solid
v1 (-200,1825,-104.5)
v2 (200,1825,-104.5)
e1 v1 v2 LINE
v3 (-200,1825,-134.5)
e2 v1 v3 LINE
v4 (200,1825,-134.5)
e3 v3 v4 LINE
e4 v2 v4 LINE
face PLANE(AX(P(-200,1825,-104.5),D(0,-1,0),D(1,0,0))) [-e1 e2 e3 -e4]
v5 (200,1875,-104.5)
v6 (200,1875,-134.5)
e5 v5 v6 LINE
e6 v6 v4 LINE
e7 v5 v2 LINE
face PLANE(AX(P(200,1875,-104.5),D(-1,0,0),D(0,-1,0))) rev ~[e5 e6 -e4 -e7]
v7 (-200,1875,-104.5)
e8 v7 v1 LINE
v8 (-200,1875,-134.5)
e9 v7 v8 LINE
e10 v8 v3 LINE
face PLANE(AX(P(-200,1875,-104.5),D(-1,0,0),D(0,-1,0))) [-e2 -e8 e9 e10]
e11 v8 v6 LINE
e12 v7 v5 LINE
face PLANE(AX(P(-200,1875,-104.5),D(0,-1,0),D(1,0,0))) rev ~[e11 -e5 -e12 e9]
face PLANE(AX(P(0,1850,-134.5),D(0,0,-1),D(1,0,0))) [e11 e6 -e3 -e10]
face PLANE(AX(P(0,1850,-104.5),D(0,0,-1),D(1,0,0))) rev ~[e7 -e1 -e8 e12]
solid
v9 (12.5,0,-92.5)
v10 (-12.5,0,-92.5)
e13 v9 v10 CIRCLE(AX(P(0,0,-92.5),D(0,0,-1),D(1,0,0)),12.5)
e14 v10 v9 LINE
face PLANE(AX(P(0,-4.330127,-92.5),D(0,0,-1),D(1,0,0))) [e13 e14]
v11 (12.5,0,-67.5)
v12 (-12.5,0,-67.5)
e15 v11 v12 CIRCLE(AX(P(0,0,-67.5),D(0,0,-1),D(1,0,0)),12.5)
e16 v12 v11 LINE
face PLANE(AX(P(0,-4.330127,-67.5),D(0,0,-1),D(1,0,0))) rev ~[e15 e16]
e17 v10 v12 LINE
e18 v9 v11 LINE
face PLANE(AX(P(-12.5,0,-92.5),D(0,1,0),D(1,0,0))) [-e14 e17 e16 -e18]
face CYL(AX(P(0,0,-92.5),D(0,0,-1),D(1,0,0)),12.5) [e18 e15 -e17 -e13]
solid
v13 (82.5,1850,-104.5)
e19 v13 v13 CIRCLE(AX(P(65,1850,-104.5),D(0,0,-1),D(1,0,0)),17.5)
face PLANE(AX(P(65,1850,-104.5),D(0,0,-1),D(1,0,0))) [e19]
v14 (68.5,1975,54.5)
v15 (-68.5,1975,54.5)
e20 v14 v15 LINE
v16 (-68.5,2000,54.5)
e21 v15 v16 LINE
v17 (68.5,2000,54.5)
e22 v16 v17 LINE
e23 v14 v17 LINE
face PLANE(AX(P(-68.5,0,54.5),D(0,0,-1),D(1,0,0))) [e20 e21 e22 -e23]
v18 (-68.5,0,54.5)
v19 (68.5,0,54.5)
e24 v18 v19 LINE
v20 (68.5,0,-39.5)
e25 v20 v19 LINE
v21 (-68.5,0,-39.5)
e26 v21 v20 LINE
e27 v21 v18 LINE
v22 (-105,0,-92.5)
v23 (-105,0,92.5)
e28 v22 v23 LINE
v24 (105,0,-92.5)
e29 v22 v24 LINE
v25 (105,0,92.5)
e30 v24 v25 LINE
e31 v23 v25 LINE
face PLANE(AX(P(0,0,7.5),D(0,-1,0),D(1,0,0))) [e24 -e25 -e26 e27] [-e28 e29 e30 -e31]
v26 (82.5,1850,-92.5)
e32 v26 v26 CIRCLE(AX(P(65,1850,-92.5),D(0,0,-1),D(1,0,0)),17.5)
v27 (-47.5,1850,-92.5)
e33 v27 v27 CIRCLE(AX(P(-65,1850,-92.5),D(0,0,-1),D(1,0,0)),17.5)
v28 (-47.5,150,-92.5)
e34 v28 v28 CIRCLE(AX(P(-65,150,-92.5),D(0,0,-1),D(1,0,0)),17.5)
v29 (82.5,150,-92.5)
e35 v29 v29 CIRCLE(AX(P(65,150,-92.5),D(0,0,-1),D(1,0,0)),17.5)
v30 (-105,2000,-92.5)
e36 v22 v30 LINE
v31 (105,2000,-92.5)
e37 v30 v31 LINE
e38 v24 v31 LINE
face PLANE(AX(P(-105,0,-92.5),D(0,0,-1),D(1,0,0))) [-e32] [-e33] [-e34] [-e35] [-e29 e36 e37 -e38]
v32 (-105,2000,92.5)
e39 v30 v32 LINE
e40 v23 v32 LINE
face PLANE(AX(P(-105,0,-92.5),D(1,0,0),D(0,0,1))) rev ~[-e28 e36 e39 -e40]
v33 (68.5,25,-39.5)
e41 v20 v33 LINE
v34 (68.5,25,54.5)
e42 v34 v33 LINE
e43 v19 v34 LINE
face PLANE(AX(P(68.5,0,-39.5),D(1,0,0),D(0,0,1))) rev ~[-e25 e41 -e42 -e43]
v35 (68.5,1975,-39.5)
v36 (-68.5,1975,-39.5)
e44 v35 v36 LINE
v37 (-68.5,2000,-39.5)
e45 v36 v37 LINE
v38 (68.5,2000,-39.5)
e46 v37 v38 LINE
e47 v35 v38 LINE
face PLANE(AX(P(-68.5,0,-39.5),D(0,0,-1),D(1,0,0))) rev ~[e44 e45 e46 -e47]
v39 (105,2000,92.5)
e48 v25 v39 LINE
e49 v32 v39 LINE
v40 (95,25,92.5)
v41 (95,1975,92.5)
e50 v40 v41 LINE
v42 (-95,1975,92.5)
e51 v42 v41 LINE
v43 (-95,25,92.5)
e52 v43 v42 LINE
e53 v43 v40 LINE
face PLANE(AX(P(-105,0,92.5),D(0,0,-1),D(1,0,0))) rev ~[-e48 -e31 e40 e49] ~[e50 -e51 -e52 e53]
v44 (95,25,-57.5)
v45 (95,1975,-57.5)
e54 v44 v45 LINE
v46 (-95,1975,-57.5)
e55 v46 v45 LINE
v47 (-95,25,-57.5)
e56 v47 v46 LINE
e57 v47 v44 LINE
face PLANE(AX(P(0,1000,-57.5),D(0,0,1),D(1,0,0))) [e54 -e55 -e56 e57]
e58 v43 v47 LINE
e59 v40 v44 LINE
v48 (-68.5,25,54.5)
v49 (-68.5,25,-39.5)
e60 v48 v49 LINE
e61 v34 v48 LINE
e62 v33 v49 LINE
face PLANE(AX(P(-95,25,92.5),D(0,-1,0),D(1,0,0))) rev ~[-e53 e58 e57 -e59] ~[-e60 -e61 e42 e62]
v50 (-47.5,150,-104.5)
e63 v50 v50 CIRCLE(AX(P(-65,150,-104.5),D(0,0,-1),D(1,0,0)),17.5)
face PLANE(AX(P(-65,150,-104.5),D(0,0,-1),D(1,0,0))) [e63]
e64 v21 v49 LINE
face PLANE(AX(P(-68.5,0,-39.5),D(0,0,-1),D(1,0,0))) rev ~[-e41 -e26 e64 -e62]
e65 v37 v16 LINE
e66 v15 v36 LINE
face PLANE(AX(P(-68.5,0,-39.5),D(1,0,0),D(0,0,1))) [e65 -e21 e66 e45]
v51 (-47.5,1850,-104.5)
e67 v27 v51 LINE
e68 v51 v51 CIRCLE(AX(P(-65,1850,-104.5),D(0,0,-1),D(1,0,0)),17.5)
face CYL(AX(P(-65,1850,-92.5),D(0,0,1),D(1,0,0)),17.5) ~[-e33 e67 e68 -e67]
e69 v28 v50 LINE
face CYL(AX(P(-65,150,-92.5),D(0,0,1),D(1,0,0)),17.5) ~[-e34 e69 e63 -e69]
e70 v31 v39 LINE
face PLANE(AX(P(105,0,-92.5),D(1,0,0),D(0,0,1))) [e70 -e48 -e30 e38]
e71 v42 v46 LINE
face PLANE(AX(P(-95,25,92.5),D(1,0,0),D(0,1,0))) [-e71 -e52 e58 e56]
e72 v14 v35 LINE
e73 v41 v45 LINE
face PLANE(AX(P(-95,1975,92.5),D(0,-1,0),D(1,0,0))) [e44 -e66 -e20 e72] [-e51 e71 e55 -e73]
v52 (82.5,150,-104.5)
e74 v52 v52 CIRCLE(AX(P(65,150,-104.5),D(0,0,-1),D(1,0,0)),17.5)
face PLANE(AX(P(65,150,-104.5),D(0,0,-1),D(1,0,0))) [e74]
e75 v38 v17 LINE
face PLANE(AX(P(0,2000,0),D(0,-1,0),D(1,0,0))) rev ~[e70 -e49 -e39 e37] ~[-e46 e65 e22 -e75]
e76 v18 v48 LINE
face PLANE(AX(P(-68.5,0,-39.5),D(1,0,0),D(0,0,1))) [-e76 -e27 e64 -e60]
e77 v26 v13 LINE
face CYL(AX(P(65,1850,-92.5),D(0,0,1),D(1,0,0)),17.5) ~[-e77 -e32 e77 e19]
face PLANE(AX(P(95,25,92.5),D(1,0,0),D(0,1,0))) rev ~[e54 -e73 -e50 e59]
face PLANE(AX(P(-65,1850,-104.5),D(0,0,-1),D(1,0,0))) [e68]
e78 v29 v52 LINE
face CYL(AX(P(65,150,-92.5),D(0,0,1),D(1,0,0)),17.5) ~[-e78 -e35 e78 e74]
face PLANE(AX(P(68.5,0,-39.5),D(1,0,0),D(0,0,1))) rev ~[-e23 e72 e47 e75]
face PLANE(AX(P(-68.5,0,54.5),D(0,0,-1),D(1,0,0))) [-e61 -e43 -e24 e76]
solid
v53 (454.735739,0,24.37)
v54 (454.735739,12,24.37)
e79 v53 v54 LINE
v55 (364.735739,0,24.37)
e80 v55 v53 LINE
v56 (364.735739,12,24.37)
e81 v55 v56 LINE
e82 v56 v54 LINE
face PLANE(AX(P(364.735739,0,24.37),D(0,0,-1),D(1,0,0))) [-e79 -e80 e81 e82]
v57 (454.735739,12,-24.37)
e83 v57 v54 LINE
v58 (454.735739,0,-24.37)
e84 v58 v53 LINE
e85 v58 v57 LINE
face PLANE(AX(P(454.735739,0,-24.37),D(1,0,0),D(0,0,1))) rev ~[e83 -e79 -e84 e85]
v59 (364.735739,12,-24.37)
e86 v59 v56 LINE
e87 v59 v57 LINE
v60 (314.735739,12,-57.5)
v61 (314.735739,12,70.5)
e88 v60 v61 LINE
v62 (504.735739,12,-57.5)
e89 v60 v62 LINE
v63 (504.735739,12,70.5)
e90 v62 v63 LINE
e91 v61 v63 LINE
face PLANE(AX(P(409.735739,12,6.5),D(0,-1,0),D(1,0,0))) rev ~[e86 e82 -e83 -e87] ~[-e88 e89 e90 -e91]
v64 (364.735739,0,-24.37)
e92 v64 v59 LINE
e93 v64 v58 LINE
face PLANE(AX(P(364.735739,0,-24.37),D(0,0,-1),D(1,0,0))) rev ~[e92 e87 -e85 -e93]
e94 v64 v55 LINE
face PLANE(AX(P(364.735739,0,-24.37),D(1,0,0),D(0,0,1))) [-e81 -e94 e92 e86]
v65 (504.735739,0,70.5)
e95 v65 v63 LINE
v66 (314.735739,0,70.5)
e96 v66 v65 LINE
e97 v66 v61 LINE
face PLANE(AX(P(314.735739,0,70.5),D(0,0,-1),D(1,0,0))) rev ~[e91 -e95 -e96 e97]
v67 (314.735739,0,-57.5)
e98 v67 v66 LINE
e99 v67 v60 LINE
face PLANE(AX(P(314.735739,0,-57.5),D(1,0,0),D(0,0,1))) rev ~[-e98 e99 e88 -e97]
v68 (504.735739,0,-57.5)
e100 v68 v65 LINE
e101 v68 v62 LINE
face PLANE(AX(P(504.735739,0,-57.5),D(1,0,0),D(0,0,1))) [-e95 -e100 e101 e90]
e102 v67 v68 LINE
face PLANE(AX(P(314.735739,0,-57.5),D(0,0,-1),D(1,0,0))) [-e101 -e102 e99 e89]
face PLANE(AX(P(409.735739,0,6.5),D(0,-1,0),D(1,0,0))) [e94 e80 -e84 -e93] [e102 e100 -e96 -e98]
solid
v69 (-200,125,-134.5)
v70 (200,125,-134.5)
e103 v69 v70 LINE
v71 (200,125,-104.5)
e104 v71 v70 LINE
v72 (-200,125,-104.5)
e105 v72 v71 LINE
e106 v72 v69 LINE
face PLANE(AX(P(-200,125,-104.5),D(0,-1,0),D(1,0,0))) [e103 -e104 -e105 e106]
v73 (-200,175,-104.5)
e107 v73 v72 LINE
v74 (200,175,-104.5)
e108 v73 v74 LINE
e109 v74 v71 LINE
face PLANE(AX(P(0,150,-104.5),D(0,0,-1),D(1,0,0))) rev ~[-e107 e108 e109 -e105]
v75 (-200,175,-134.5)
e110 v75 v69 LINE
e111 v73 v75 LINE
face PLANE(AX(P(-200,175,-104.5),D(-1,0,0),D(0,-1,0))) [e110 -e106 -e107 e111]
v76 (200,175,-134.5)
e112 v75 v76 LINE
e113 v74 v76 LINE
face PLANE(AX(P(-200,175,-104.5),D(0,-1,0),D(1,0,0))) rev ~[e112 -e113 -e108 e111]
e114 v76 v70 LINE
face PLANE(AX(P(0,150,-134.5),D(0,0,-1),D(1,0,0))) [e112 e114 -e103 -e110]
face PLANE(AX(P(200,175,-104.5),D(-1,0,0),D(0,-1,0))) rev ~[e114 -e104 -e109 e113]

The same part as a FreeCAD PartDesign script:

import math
import FreeCAD as App
import Part
import Sketcher
from FreeCAD import Vector
Q = App.Units.Quantity


def add_polygon(sketch, points):
    """Adds a closed chain of lines whose ends are joined by coincident constraints."""
    first, n = sketch.GeometryCount, len(points)
    for a, b in zip(points, points[1:] + points[:1]):
        sketch.addGeometry(Part.LineSegment(App.Vector(*a, 0), App.Vector(*b, 0)), False)
    for i in range(n):
        sketch.addConstraint(Sketcher.Constraint("Coincident", first + i, 2, first + (i + 1) % n, 1))

doc = App.newDocument("Part")
body = doc.addObject("PartDesign::Body", "Body")

# Sketch on XZ plane
sketch1 = doc.addObject("Sketcher::SketchObject", "Sketch")
body.addObject(sketch1)
sketch1.AttachmentSupport = (doc.XZ_Plane, [""])
sketch1.MapMode = "FlatFace"
add_polygon(sketch1, [(-105, 92), (-105, -92), (105, -92), (105, 92)])  # lines 0-3
sketch1.addConstraint([
    Sketcher.Constraint("Vertical", 0),
    Sketcher.Constraint("Horizontal", 1),
    Sketcher.Constraint("Vertical", 2),
    Sketcher.Constraint("Horizontal", 3),
    Sketcher.Constraint("Symmetric", 0, 2, 2, 2, -1, 1),
    Sketcher.Constraint("DistanceX", 1, 1, 1, 2, Q("210 mm")),
    Sketcher.Constraint("DistanceY", 0, 2, 0, 1, Q("185 mm")),
])
pad1 = doc.addObject("PartDesign::Pad", "Pad")
body.addObject(pad1)
pad1.Profile = sketch1
pad1.Length = 2000
pad1.Reversed = True

# Sketch on XZ plane
sketch2 = doc.addObject("Sketcher::SketchObject", "Sketch001")
body.addObject(sketch2)
sketch2.AttachmentSupport = (doc.XZ_Plane, [""])
sketch2.MapMode = "FlatFace"
add_polygon(sketch2, [(-68, 54), (-68, -40), (68, -40), (68, 54)])  # lines 0-3
sketch2.addConstraint([
    Sketcher.Constraint("Vertical", 0),
    Sketcher.Constraint("Horizontal", 1),
    Sketcher.Constraint("Vertical", 2),
    Sketcher.Constraint("Horizontal", 3),
    Sketcher.Constraint("DistanceX", 1, 1, 1, 2, Q("137 mm")),
    Sketcher.Constraint("DistanceY", 0, 2, 0, 1, Q("94 mm")),
    Sketcher.Constraint("DistanceX", 0, 2, -1, 1, Q("68.5 mm")),
    Sketcher.Constraint("DistanceY", 0, 2, -1, 1, Q("39.5 mm")),
])
pad2 = doc.addObject("PartDesign::Pad", "Pad001")
body.addObject(pad2)
pad2.Profile = sketch2
pad2.Length = 2100
pad2.Reversed = True

# Sketch on XZ plane
sketch3 = doc.addObject("Sketcher::SketchObject", "Sketch002")
body.addObject(sketch3)
sketch3.AttachmentSupport = (doc.XZ_Plane, [""])
sketch3.MapMode = "FlatFace"
add_polygon(sketch3, [(-68, 54), (-68, -40), (68, -40), (68, 54)])  # lines 0-3
sketch3.addConstraint([
    Sketcher.Constraint("Vertical", 0),
    Sketcher.Constraint("Horizontal", 1),
    Sketcher.Constraint("Vertical", 2),
    Sketcher.Constraint("Horizontal", 3),
    Sketcher.Constraint("DistanceX", 1, 1, 1, 2, Q("137 mm")),
    Sketcher.Constraint("DistanceY", 0, 2, 0, 1, Q("94 mm")),
    Sketcher.Constraint("DistanceX", 0, 2, -1, 1, Q("68.5 mm")),
    Sketcher.Constraint("DistanceY", 0, 2, -1, 1, Q("39.5 mm")),
])
pocket1 = doc.addObject("PartDesign::Pocket", "Pocket")
body.addObject(pocket1)
pocket1.Profile = sketch3
pocket1.Length = 2100

# Sketch on XY plane
sketch4 = doc.addObject("Sketcher::SketchObject", "Sketch003")
body.addObject(sketch4)
sketch4.AttachmentSupport = (doc.XY_Plane, [""])
sketch4.MapMode = "FlatFace"
sketch4.AttachmentOffset = App.Placement(Vector(0, 0, 92.5), App.Rotation())
add_polygon(sketch4, [(-95, 1975), (-95, 25), (95, 25), (95, 1975)])  # lines 0-3
sketch4.addConstraint([
    Sketcher.Constraint("Vertical", 0),
    Sketcher.Constraint("Horizontal", 1),
    Sketcher.Constraint("Vertical", 2),
    Sketcher.Constraint("Horizontal", 3),
    Sketcher.Constraint("DistanceX", 1, 1, 1, 2, Q("190 mm")),
    Sketcher.Constraint("DistanceY", 0, 2, 0, 1, Q("1950 mm")),
    Sketcher.Constraint("DistanceX", 0, 2, -1, 1, Q("95 mm")),
    Sketcher.Constraint("DistanceY", -1, 1, 0, 2, Q("25 mm")),
])
pocket2 = doc.addObject("PartDesign::Pocket", "Pocket001")
body.addObject(pocket2)
pocket2.Profile = sketch4
pocket2.Length = 150

# Sketch on XY plane
sketch5 = doc.addObject("Sketcher::SketchObject", "Sketch004")
body.addObject(sketch5)
sketch5.AttachmentSupport = (doc.XY_Plane, [""])
sketch5.MapMode = "FlatFace"
sketch5.AttachmentOffset = App.Placement(Vector(0, 0, -92.5), App.Rotation())
sketch5.addGeometry([
    Part.Circle(Vector(65, 1850, 0), Vector(0, 0, 1), 18),
    Part.Circle(Vector(-65, 1850, 0), Vector(0, 0, 1), 18),
    Part.Circle(Vector(65, 150, 0), Vector(0, 0, 1), 18),
    Part.Circle(Vector(-65, 150, 0), Vector(0, 0, 1), 18),
], False)
sketch5.addConstraint([
    Sketcher.Constraint("Equal", 0, 1),
    Sketcher.Constraint("Equal", 1, 2),
    Sketcher.Constraint("Equal", 2, 3),
    Sketcher.Constraint("Symmetric", 0, 3, 1, 3, -2),
    Sketcher.Constraint("Symmetric", 2, 3, 3, 3, -2),
    Sketcher.Constraint("Vertical", 0, 3, 2, 3),
    Sketcher.Constraint("Diameter", 0, Q("35 mm")),
    Sketcher.Constraint("DistanceX", -1, 1, 0, 3, Q("65 mm")),
    Sketcher.Constraint("DistanceY", -1, 1, 0, 3, Q("1850 mm")),
    Sketcher.Constraint("DistanceY", -1, 1, 2, 3, Q("150 mm")),
])
pad3 = doc.addObject("PartDesign::Pad", "Pad002")
body.addObject(pad3)
pad3.Profile = sketch5
pad3.Length = 12
pad3.Reversed = True
body2 = doc.addObject("PartDesign::Body", "Body001")

# Sketch on XY plane
sketch6 = doc.addObject("Sketcher::SketchObject", "Sketch005")
body2.addObject(sketch6)
sketch6.AttachmentSupport = (doc.getObject("XY_Plane001"), [""])
sketch6.MapMode = "FlatFace"
sketch6.AttachmentOffset = App.Placement(Vector(0, 0, -92.5), App.Rotation())
sketch6.addGeometry([
    Part.LineSegment(Vector(-12, 0, 0), Vector(12, 0, 0)),
    Part.ArcOfCircle(Part.Circle(Vector(0, 0, 0), Vector(0, 0, 1), 12), math.radians(180), math.radians(360)),
], False)
sketch6.addConstraint([
    Sketcher.Constraint("Coincident", 0, 1, 1, 1),
    Sketcher.Constraint("Coincident", 1, 2, 0, 2),
    Sketcher.Constraint("Horizontal", 0),
    Sketcher.Constraint("Coincident", 1, 3, -1, 1),
    Sketcher.Constraint("PointOnObject", 0, 1, -1),
    Sketcher.Constraint("Radius", 1, Q("12.5 mm")),
])
pad4 = doc.addObject("PartDesign::Pad", "Pad003")
body2.addObject(pad4)
pad4.Profile = sketch6
pad4.Length = 25
body3 = doc.addObject("PartDesign::Body", "Body002")

# Sketch on XY plane
sketch7 = doc.addObject("Sketcher::SketchObject", "Sketch006")
body3.addObject(sketch7)
sketch7.AttachmentSupport = (doc.getObject("XY_Plane002"), [""])
sketch7.MapMode = "FlatFace"
sketch7.AttachmentOffset = App.Placement(Vector(0, 0, -104.5), App.Rotation())
add_polygon(sketch7, [(-200, 1825), (-200, 1875), (200, 1875), (200, 1825)])  # lines 0-3
sketch7.addConstraint([
    Sketcher.Constraint("Vertical", 0),
    Sketcher.Constraint("Horizontal", 1),
    Sketcher.Constraint("Vertical", 2),
    Sketcher.Constraint("Horizontal", 3),
    Sketcher.Constraint("DistanceX", 1, 1, 1, 2, Q("400 mm")),
    Sketcher.Constraint("DistanceY", 0, 1, 0, 2, Q("50 mm")),
    Sketcher.Constraint("DistanceX", 0, 2, -1, 1, Q("200 mm")),
    Sketcher.Constraint("DistanceY", -1, 1, 0, 2, Q("1875 mm")),
])
pad5 = doc.addObject("PartDesign::Pad", "Pad004")
body3.addObject(pad5)
pad5.Profile = sketch7
pad5.Length = 30
pad5.Reversed = True
body4 = doc.addObject("PartDesign::Body", "Body003")

# Sketch on XY plane
sketch8 = doc.addObject("Sketcher::SketchObject", "Sketch007")
body4.addObject(sketch8)
sketch8.AttachmentSupport = (doc.getObject("XY_Plane003"), [""])
sketch8.MapMode = "FlatFace"
sketch8.AttachmentOffset = App.Placement(Vector(0, 0, -104.5), App.Rotation())
add_polygon(sketch8, [(-200, 125), (-200, 175), (200, 175), (200, 125)])  # lines 0-3
sketch8.addConstraint([
    Sketcher.Constraint("Vertical", 0),
    Sketcher.Constraint("Horizontal", 1),
    Sketcher.Constraint("Vertical", 2),
    Sketcher.Constraint("Horizontal", 3),
    Sketcher.Constraint("DistanceX", 1, 1, 1, 2, Q("400 mm")),
    Sketcher.Constraint("DistanceY", 0, 1, 0, 2, Q("50 mm")),
    Sketcher.Constraint("DistanceX", 0, 2, -1, 1, Q("200 mm")),
    Sketcher.Constraint("DistanceY", -1, 1, 0, 2, Q("175 mm")),
])
pad6 = doc.addObject("PartDesign::Pad", "Pad005")
body4.addObject(pad6)
pad6.Profile = sketch8
pad6.Length = 30
pad6.Reversed = True
body5 = doc.addObject("PartDesign::Body", "Body004")

# Sketch on XZ plane
sketch9 = doc.addObject("Sketcher::SketchObject", "Sketch008")
body5.addObject(sketch9)
sketch9.AttachmentSupport = (doc.getObject("XZ_Plane004"), [""])
sketch9.MapMode = "FlatFace"
add_polygon(sketch9, [(315, 70), (315, -58), (505, -58), (505, 70)])  # lines 0-3
add_polygon(sketch9, [(455, -24), (365, -24), (365, 24), (455, 24)])  # lines 4-7
sketch9.addConstraint([
    Sketcher.Constraint("Vertical", 0),
    Sketcher.Constraint("Horizontal", 1),
    Sketcher.Constraint("Vertical", 2),
    Sketcher.Constraint("Horizontal", 3),
    Sketcher.Constraint("Horizontal", 4),
    Sketcher.Constraint("Vertical", 5),
    Sketcher.Constraint("Horizontal", 6),
    Sketcher.Constraint("Vertical", 7),
    Sketcher.Constraint("DistanceX", 1, 1, 1, 2, Q("190 mm")),
    Sketcher.Constraint("DistanceX", 4, 2, 4, 1, Q("90 mm")),
    Sketcher.Constraint("DistanceY", 0, 2, 0, 1, Q("128 mm")),
    Sketcher.Constraint("DistanceX", 0, 2, 4, 2, Q("50 mm")),
    Sketcher.Constraint("DistanceY", 5, 1, 5, 2, Q("48.74 mm")),
    Sketcher.Constraint("DistanceY", 0, 2, -1, 1, Q("57.5 mm")),
    Sketcher.Constraint("DistanceY", 4, 2, -1, 1, Q("24.37 mm")),
    Sketcher.Constraint("DistanceX", -1, 1, 0, 2, Q("314.735739 mm")),
])
pad7 = doc.addObject("PartDesign::Pad", "Pad006")
body5.addObject(pad7)
pad7.Profile = sketch9
pad7.Length = 12
pad7.Reversed = True

doc.recompute()
